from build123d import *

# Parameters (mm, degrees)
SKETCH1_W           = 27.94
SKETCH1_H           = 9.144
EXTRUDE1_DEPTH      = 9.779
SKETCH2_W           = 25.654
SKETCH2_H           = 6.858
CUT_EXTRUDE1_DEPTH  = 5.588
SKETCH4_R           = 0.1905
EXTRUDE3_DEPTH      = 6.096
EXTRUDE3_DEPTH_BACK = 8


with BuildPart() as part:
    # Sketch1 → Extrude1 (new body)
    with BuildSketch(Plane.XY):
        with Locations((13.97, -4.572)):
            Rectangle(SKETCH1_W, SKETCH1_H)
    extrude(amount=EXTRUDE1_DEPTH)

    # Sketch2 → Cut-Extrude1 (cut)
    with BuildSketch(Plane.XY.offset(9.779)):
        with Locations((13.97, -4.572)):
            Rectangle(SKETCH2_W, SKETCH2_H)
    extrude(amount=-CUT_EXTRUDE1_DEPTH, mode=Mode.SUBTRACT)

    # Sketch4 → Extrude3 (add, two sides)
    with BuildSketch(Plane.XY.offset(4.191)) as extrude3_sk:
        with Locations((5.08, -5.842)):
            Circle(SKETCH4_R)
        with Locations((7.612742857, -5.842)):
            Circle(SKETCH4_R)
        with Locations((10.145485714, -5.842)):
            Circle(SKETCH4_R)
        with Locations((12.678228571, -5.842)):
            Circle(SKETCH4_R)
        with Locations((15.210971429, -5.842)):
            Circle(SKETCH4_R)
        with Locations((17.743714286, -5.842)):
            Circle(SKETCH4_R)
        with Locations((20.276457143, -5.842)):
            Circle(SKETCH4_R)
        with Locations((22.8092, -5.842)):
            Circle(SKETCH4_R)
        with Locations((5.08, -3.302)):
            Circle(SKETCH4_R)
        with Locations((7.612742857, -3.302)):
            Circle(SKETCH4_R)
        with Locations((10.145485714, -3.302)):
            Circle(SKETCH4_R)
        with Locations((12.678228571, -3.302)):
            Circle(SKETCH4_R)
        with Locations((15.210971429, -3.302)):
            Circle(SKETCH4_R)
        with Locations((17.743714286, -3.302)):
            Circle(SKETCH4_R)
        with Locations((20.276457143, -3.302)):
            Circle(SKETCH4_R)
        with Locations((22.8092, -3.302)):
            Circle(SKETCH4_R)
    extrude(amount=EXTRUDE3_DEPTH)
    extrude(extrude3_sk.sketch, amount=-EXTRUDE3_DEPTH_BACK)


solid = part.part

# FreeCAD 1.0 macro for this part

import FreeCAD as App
import Part
import Sketcher

V = App.Vector
Q = App.Units.Quantity

doc = App.newDocument("Part")
params = doc.addObject("Spreadsheet::Sheet", "Params")
for row, (alias, value) in enumerate([
    ("sketch1_width", "1.1 in"),
    ("sketch1_height", "0.36 in"),
    ("pad1_length", "0.385 in"),
    ("sketch2_width", "1.01 in"),
    ("sketch2_height", "0.27 in"),
    ("pocket1_length", "0.22 in"),
    ("sketch3_diameter", "0.015 in"),
    ("pad2_length", "0.24 in"),
    ("pad2_length2", "8 mm"),
], start=1):
    params.set(f"A{row}", alias)
    params.set(f"B{row}", "=" + value)
    params.setAlias(f"B{row}", alias)

body = doc.addObject("PartDesign::Body", "Body")

sketch1 = doc.addObject("Sketcher::SketchObject", "Sketch")
body.addObject(sketch1)
sketch1.AttachmentSupport = (doc.XY_Plane, [""])
sketch1.MapMode = "FlatFace"
sketch1.addGeometry([
    Part.LineSegment(V(0, 0, 0), V(0, -9, 0)),
    Part.LineSegment(V(0, -9, 0), V(28, -9, 0)),
    Part.LineSegment(V(28, -9, 0), V(28, 0, 0)),
    Part.LineSegment(V(28, 0, 0), V(0, 0, 0)),
], False)
sketch1.addConstraint([
    Sketcher.Constraint("Coincident", 0, 2, 1, 1),
    Sketcher.Constraint("Coincident", 1, 2, 2, 1),
    Sketcher.Constraint("Coincident", 2, 2, 3, 1),
    Sketcher.Constraint("Coincident", 3, 2, 0, 1),
    Sketcher.Constraint("Vertical", 0),
    Sketcher.Constraint("Horizontal", 1),
    Sketcher.Constraint("Vertical", 2),
    Sketcher.Constraint("Horizontal", 3),
    Sketcher.Constraint("Coincident", 3, 2, -1, 1),
    Sketcher.Constraint("DistanceX", 1, 1, 1, 2, Q("1.1 in")),
    Sketcher.Constraint("DistanceY", 0, 2, 0, 1, Q("0.36 in")),
])
sketch1.setExpression("Constraints[9]", "Params.sketch1_width")
sketch1.setExpression("Constraints[10]", "Params.sketch1_height")
pad1 = doc.addObject("PartDesign::Pad", "Pad")
body.addObject(pad1)
pad1.Profile = sketch1
pad1.setExpression("Length", "Params.pad1_length")

sketch2 = doc.addObject("Sketcher::SketchObject", "Sketch001")
body.addObject(sketch2)
sketch2.AttachmentSupport = (doc.XY_Plane, [""])
sketch2.MapMode = "FlatFace"
sketch2.AttachmentOffset = App.Placement(V(0, 0, 0.385 * 25.4), App.Rotation())
sketch2.addGeometry([
    Part.LineSegment(V(1, -1, 0), V(1, -8, 0)),
    Part.LineSegment(V(1, -8, 0), V(27, -8, 0)),
    Part.LineSegment(V(27, -8, 0), V(27, -1, 0)),
    Part.LineSegment(V(27, -1, 0), V(1, -1, 0)),
], False)
sketch2.addConstraint([
    Sketcher.Constraint("Coincident", 0, 2, 1, 1),
    Sketcher.Constraint("Coincident", 1, 2, 2, 1),
    Sketcher.Constraint("Coincident", 2, 2, 3, 1),
    Sketcher.Constraint("Coincident", 3, 2, 0, 1),
    Sketcher.Constraint("Vertical", 0),
    Sketcher.Constraint("Horizontal", 1),
    Sketcher.Constraint("Vertical", 2),
    Sketcher.Constraint("Horizontal", 3),
    Sketcher.Constraint("DistanceX", 1, 1, 1, 2, Q("1.01 in")),
    Sketcher.Constraint("DistanceY", 0, 2, 0, 1, Q("0.27 in")),
    Sketcher.Constraint("DistanceX", -1, 1, 0, 2, Q("0.045 in")),
    Sketcher.Constraint("DistanceY", 0, 2, -1, 1, Q("0.315 in")),
])
sketch2.setExpression("Constraints[8]", "Params.sketch2_width")
sketch2.setExpression("Constraints[9]", "Params.sketch2_height")
pocket1 = doc.addObject("PartDesign::Pocket", "Pocket")
body.addObject(pocket1)
pocket1.Profile = sketch2
pocket1.setExpression("Length", "Params.pocket1_length")

sketch3 = doc.addObject("Sketcher::SketchObject", "Sketch002")
body.addObject(sketch3)
sketch3.AttachmentSupport = (doc.XY_Plane, [""])
sketch3.MapMode = "FlatFace"
sketch3.AttachmentOffset = App.Placement(V(0, 0, 0.165 * 25.4), App.Rotation())
sketch3.addGeometry([
    Part.Circle(V(5.08, -5.84, 0), V(0, 0, 1), 0.19),
    Part.Circle(V(7.61, -5.84, 0), V(0, 0, 1), 0.19),
    Part.Circle(V(10.15, -5.84, 0), V(0, 0, 1), 0.19),
    Part.Circle(V(12.68, -5.84, 0), V(0, 0, 1), 0.19),
    Part.Circle(V(15.21, -5.84, 0), V(0, 0, 1), 0.19),
    Part.Circle(V(17.74, -5.84, 0), V(0, 0, 1), 0.19),
    Part.Circle(V(20.28, -5.84, 0), V(0, 0, 1), 0.19),
    Part.Circle(V(22.81, -5.84, 0), V(0, 0, 1), 0.19),
    Part.Circle(V(5.08, -3.3, 0), V(0, 0, 1), 0.19),
    Part.Circle(V(7.61, -3.3, 0), V(0, 0, 1), 0.19),
    Part.Circle(V(10.15, -3.3, 0), V(0, 0, 1), 0.19),
    Part.Circle(V(12.68, -3.3, 0), V(0, 0, 1), 0.19),
    Part.Circle(V(15.21, -3.3, 0), V(0, 0, 1), 0.19),
    Part.Circle(V(17.74, -3.3, 0), V(0, 0, 1), 0.19),
    Part.Circle(V(20.28, -3.3, 0), V(0, 0, 1), 0.19),
    Part.Circle(V(22.81, -3.3, 0), V(0, 0, 1), 0.19),
], False)
sketch3.addConstraint([
    Sketcher.Constraint("Equal", 0, 1),
    Sketcher.Constraint("Equal", 1, 2),
    Sketcher.Constraint("Equal", 2, 3),
    Sketcher.Constraint("Equal", 3, 4),
    Sketcher.Constraint("Equal", 4, 5),
    Sketcher.Constraint("Equal", 5, 6),
    Sketcher.Constraint("Equal", 6, 7),
    Sketcher.Constraint("Equal", 7, 8),
    Sketcher.Constraint("Equal", 8, 9),
    Sketcher.Constraint("Equal", 9, 10),
    Sketcher.Constraint("Equal", 10, 11),
    Sketcher.Constraint("Equal", 11, 12),
    Sketcher.Constraint("Equal", 12, 13),
    Sketcher.Constraint("Equal", 13, 14),
    Sketcher.Constraint("Equal", 14, 15),
    Sketcher.Constraint("Horizontal", 0, 3, 1, 3),
    Sketcher.Constraint("Horizontal", 1, 3, 2, 3),
    Sketcher.Constraint("Horizontal", 2, 3, 3, 3),
    Sketcher.Constraint("Horizontal", 3, 3, 4, 3),
    Sketcher.Constraint("Horizontal", 4, 3, 5, 3),
    Sketcher.Constraint("Horizontal", 5, 3, 6, 3),
    Sketcher.Constraint("Horizontal", 6, 3, 7, 3),
    Sketcher.Constraint("Horizontal", 8, 3, 9, 3),
    Sketcher.Constraint("Horizontal", 9, 3, 10, 3),
    Sketcher.Constraint("Horizontal", 10, 3, 11, 3),
    Sketcher.Constraint("Horizontal", 11, 3, 12, 3),
    Sketcher.Constraint("Horizontal", 12, 3, 13, 3),
    Sketcher.Constraint("Horizontal", 13, 3, 14, 3),
    Sketcher.Constraint("Horizontal", 14, 3, 15, 3),
    Sketcher.Constraint("Vertical", 0, 3, 8, 3),
    Sketcher.Constraint("Vertical", 1, 3, 9, 3),
    Sketcher.Constraint("Vertical", 2, 3, 10, 3),
    Sketcher.Constraint("Vertical", 3, 3, 11, 3),
    Sketcher.Constraint("Vertical", 4, 3, 12, 3),
    Sketcher.Constraint("Vertical", 5, 3, 13, 3),
    Sketcher.Constraint("Vertical", 6, 3, 14, 3),
    Sketcher.Constraint("Vertical", 7, 3, 15, 3),
    Sketcher.Constraint("Diameter", 0, Q("0.015 in")),
    Sketcher.Constraint("DistanceX", -1, 1, 0, 3, Q("0.2 in")),
    Sketcher.Constraint("DistanceY", 0, 3, 8, 3, Q("0.1 in")),
    Sketcher.Constraint("DistanceY", 0, 3, -1, 1, Q("0.23 in")),
    Sketcher.Constraint("DistanceX", -1, 1, 7, 3, Q("0.898 in")),
    Sketcher.Constraint("DistanceX", -1, 1, 3, 3, Q("12.678229 mm")),
    Sketcher.Constraint("DistanceX", -1, 1, 4, 3, Q("15.210971 mm")),
    Sketcher.Constraint("DistanceX", 1, 3, 4, 3, Q("7.598229 mm")),
    Sketcher.Constraint("DistanceX", 2, 3, 5, 3, Q("7.598229 mm")),
    Sketcher.Constraint("DistanceX", 1, 3, 5, 3, Q("10.130971 mm")),
    Sketcher.Constraint("DistanceX", 3, 3, 6, 3, Q("7.598229 mm")),
])
sketch3.setExpression("Constraints[37]", "Params.sketch3_diameter")
pad2 = doc.addObject("PartDesign::Pad", "Pad001")
body.addObject(pad2)
pad2.Profile = sketch3
pad2.Type = "TwoLengths"
pad2.setExpression("Length", "Params.pad2_length")
pad2.setExpression("Length2", "Params.pad2_length2")

doc.recompute()
